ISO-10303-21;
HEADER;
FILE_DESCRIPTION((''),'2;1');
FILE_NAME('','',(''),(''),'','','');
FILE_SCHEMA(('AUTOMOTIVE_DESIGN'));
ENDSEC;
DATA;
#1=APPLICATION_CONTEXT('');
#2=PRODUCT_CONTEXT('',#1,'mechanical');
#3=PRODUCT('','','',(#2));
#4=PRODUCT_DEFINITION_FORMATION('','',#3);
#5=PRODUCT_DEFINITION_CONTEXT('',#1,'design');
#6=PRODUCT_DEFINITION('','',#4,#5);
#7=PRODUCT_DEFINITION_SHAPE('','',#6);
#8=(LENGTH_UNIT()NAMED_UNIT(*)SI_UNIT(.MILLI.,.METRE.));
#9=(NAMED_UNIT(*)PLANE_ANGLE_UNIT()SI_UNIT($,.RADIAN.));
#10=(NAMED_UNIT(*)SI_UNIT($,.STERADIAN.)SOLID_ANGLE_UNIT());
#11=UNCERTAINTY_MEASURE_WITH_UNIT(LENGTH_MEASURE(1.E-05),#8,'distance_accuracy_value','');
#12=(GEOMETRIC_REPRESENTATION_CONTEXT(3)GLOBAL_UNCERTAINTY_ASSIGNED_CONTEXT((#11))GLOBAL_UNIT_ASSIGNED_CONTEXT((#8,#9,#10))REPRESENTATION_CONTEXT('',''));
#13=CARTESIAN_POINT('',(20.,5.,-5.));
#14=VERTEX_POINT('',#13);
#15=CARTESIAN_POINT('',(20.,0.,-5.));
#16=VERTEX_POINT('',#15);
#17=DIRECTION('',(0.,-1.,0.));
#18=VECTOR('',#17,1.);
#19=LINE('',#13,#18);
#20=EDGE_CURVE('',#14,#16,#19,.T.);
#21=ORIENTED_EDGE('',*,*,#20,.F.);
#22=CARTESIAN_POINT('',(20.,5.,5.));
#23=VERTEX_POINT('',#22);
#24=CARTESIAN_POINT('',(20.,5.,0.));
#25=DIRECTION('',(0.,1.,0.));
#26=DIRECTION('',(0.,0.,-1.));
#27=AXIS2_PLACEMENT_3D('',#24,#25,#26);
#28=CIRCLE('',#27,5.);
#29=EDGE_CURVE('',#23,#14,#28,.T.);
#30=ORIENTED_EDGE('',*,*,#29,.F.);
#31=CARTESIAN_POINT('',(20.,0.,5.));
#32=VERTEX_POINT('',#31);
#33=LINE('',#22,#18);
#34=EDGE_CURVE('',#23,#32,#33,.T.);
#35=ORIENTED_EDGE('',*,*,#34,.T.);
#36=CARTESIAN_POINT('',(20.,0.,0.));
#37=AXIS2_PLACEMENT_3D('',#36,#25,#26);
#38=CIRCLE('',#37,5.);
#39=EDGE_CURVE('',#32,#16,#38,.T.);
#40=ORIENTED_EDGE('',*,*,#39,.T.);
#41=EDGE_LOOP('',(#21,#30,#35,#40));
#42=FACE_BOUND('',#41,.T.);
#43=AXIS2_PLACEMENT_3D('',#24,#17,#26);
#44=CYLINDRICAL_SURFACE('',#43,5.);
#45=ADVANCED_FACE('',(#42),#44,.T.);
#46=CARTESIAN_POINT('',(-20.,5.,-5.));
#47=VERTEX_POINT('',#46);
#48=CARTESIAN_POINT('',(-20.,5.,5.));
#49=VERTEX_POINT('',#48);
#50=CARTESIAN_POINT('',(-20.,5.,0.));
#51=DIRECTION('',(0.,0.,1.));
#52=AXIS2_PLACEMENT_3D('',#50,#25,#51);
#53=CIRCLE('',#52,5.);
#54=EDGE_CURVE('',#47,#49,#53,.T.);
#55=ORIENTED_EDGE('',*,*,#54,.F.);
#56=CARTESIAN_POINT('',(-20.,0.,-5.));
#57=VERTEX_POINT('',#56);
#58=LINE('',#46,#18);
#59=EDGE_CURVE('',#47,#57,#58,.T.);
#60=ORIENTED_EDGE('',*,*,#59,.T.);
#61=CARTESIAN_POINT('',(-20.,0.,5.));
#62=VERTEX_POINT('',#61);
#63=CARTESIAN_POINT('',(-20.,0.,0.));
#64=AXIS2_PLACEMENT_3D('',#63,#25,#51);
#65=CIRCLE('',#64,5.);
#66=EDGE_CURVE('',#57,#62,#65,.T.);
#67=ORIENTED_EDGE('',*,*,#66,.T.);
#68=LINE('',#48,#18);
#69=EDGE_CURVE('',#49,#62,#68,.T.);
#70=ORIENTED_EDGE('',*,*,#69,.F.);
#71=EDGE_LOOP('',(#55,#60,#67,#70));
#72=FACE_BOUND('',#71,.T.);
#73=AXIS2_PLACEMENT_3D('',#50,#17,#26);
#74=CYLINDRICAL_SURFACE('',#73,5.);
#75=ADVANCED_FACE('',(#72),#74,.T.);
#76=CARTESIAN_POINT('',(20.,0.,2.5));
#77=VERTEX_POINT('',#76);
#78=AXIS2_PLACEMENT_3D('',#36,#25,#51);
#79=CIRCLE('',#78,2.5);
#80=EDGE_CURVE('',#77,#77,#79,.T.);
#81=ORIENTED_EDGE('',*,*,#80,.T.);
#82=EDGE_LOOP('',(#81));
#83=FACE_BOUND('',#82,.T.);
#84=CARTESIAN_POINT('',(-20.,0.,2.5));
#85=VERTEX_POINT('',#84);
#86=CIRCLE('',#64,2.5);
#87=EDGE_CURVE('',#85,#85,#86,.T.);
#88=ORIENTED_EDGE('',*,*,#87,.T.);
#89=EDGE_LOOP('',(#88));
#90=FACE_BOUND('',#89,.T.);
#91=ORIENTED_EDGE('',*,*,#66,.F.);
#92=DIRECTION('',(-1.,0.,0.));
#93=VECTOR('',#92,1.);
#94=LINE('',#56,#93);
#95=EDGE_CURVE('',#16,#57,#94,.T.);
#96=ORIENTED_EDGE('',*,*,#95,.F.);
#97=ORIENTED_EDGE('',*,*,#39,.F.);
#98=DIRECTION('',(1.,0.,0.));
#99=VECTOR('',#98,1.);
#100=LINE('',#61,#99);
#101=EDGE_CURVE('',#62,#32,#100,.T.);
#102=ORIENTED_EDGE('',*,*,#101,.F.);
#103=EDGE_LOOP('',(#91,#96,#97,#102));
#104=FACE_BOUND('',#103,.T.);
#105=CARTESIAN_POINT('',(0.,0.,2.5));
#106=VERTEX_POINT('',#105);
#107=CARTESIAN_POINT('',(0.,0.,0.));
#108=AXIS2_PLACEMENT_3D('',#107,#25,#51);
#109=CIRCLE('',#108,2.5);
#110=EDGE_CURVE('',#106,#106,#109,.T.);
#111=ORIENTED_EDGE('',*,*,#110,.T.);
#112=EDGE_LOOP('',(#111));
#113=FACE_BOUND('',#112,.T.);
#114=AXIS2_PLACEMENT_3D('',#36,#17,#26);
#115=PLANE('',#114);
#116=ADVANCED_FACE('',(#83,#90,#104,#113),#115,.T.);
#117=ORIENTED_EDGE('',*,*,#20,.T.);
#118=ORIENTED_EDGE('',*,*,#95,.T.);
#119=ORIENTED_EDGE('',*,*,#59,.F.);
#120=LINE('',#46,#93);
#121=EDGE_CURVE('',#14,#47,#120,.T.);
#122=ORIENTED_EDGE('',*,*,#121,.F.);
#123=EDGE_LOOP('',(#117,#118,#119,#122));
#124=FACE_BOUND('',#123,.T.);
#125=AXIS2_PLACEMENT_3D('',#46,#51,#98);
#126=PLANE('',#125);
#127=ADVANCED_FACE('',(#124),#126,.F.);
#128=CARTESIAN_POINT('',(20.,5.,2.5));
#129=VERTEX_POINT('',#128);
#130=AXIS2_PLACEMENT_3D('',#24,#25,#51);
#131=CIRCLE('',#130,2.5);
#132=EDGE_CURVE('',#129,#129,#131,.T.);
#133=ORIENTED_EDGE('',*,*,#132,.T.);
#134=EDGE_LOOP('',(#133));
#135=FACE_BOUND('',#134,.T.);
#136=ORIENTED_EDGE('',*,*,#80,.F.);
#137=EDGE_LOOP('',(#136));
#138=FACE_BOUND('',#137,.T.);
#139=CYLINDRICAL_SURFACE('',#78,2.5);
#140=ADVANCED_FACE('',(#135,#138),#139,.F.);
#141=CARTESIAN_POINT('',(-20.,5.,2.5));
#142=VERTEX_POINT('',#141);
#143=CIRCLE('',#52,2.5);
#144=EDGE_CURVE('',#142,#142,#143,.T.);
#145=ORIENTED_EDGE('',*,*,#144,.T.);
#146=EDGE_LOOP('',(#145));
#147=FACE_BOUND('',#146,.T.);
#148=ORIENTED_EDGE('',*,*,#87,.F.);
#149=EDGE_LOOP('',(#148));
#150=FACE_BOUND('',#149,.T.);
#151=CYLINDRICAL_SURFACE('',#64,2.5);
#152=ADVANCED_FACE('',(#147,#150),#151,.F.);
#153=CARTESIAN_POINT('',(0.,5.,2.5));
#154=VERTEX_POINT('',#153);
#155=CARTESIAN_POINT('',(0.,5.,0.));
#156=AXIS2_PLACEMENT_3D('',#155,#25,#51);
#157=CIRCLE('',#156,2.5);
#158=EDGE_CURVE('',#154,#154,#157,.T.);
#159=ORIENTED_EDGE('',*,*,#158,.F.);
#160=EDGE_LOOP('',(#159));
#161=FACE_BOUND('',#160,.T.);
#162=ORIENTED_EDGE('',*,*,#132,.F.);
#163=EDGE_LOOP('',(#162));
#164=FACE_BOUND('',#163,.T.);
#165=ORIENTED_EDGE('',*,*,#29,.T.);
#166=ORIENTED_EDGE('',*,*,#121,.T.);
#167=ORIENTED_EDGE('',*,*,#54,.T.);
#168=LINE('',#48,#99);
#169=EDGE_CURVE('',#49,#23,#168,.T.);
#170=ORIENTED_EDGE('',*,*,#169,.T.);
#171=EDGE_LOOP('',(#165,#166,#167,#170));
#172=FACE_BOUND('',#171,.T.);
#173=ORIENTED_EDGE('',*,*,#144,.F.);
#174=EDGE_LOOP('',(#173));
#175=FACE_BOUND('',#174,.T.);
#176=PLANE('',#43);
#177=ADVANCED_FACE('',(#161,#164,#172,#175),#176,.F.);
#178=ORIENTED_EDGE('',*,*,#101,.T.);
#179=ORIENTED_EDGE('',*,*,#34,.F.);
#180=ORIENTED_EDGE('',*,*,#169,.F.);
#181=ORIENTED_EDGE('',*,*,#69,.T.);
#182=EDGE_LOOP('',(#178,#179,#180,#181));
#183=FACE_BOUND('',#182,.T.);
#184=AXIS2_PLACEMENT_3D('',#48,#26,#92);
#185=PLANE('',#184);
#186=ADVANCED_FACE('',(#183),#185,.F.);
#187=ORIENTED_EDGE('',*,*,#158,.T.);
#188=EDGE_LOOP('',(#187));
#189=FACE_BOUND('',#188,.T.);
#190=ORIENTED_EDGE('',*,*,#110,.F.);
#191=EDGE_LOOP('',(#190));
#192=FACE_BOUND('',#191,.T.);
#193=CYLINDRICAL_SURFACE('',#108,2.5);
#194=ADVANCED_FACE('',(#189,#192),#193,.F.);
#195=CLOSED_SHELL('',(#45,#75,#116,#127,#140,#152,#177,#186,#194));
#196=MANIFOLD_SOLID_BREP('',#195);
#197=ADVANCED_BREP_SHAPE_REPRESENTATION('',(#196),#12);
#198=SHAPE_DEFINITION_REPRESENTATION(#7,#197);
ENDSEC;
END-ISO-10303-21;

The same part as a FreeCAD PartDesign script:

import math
import FreeCAD as App
import Part
import Sketcher

doc = App.newDocument("Part")
body = doc.addObject("PartDesign::Body", "Body")

sketch1 = body.newObject("Sketcher::SketchObject", "Sketch")
sketch1.AttachmentSupport = (doc.getObject("XZ_Plane"), [""])
sketch1.MapMode = "FlatFace"
sketch1.addGeometry(Part.LineSegment(App.Vector(-20, 5, 0), App.Vector(20, 5, 0)), False)
sketch1.addGeometry(Part.ArcOfCircle(Part.Circle(App.Vector(20, 0, 0), App.Vector(0, 0, 1), 5), math.radians(-90), math.radians(90)), False)
sketch1.addGeometry(Part.LineSegment(App.Vector(20, -5, 0), App.Vector(-20, -5, 0)), False)
sketch1.addGeometry(Part.ArcOfCircle(Part.Circle(App.Vector(-20, 0, 0), App.Vector(0, 0, 1), 5), math.radians(90), math.radians(270)), False)
sketch1.addConstraint(Sketcher.Constraint("Tangent", 0, 2, 1, 2))
sketch1.addConstraint(Sketcher.Constraint("Tangent", 1, 1, 2, 1))
sketch1.addConstraint(Sketcher.Constraint("Tangent", 2, 2, 3, 2))
sketch1.addConstraint(Sketcher.Constraint("Tangent", 3, 1, 0, 1))
sketch1.addConstraint(Sketcher.Constraint("Horizontal", 0))
sketch1.addConstraint(Sketcher.Constraint("Horizontal", 2))
sketch1.addConstraint(Sketcher.Constraint("Symmetric", 1, 3, 3, 3, -1, 1))
sketch1.addConstraint(Sketcher.Constraint("Radius", 1, 5.0))
sketch1.addConstraint(Sketcher.Constraint("DistanceX", 0, 1, 0, 2, 40.0))
pad1 = body.newObject("PartDesign::Pad", "Pad")
pad1.Profile = sketch1
pad1.Length = 5
pad1.Reversed = True

sketch2 = body.newObject("Sketcher::SketchObject", "Sketch001")
sketch2.AttachmentSupport = (doc.getObject("XZ_Plane"), [""])
sketch2.MapMode = "FlatFace"
sketch2.AttachmentOffset = App.Placement(App.Vector(0, 0, -5), App.Rotation())
sketch2.addGeometry(Part.Circle(App.Vector(-20, 0, 0), App.Vector(0, 0, 1), 2.5), False)
sketch2.addGeometry(Part.Circle(App.Vector(20, 0, 0), App.Vector(0, 0, 1), 2.5), False)
sketch2.addGeometry(Part.Circle(App.Vector(0, 0, 0), App.Vector(0, 0, 1), 2.5), False)
sketch2.addConstraint(Sketcher.Constraint("Coincident", 2, 3, -1, 1))
sketch2.addConstraint(Sketcher.Constraint("Equal", 0, 1))
sketch2.addConstraint(Sketcher.Constraint("Equal", 1, 2))
sketch2.addConstraint(Sketcher.Constraint("Symmetric", 0, 3, 1, 3, -1, 1))
sketch2.addConstraint(Sketcher.Constraint("PointOnObject", 0, 3, -1))
sketch2.addConstraint(Sketcher.Constraint("Diameter", 0, 5.0))
sketch2.addConstraint(Sketcher.Constraint("DistanceX", 0, 3, -1, 1, 20.0))
pocket1 = body.newObject("PartDesign::Pocket", "Pocket")
pocket1.Profile = sketch2
pocket1.Type = "ThroughAll"
pocket1.Reversed = True

doc.recompute()
